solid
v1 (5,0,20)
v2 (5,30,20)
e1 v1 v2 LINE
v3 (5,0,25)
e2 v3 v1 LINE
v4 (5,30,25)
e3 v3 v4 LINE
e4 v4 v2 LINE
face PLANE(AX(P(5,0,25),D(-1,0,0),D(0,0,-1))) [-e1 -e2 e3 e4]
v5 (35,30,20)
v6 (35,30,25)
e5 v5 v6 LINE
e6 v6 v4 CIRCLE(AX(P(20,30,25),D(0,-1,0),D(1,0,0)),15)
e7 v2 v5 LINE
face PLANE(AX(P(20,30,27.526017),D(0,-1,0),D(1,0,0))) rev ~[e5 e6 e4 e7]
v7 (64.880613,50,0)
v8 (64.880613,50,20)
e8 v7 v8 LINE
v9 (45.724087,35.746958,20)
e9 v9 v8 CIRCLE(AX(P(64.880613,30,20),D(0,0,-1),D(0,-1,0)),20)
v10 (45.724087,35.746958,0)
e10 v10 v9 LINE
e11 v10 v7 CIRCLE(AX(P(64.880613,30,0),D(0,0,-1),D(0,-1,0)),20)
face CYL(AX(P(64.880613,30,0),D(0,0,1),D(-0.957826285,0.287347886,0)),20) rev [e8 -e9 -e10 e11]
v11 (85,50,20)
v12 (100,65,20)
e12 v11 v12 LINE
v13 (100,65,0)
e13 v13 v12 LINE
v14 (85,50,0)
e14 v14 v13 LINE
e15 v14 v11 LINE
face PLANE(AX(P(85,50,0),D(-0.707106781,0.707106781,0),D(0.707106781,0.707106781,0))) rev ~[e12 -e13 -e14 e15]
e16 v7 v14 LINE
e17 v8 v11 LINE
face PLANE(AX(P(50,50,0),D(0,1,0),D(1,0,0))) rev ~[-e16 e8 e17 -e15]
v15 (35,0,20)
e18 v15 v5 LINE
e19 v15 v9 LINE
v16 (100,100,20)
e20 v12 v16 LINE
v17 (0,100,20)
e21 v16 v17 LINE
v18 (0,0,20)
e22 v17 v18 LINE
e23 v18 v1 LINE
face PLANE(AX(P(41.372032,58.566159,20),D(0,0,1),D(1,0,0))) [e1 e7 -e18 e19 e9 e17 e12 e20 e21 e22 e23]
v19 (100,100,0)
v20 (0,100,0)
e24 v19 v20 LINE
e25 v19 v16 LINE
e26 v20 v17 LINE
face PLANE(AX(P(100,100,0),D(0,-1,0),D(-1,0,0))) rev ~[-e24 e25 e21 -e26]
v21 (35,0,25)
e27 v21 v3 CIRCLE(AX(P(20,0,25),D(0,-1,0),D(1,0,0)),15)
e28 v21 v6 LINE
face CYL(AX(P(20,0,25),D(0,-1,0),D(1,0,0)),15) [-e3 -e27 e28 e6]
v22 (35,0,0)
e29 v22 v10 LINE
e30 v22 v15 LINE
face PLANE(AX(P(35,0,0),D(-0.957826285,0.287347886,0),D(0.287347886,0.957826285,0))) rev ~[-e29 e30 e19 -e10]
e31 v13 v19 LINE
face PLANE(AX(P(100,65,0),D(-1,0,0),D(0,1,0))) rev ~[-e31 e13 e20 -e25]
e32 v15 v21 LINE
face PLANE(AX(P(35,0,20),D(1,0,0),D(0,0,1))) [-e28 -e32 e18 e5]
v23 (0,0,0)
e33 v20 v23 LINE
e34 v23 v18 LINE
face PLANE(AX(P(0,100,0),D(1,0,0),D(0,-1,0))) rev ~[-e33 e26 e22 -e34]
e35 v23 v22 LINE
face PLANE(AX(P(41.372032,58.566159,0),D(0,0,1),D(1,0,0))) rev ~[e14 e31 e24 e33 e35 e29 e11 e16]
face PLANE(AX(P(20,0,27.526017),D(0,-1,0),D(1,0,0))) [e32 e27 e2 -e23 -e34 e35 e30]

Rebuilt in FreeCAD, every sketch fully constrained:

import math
import FreeCAD as App
import Part
import Sketcher
from FreeCAD import Vector
Q = App.Units.Quantity


def edges_at(feature, points):
    """Names of the edges that pass closest to the given points."""
    edges = feature.Shape.Edges
    near = lambda p: min(range(len(edges)), key=lambda i: edges[i].distToShape(Part.Vertex(*p))[0])
    return sorted({f"Edge{near(p) + 1}" for p in points})

doc = App.newDocument("Part")
body = doc.addObject("PartDesign::Body", "Body")

# Sketch on XY plane
sketch1 = body.newObject("Sketcher::SketchObject", "Sketch")
sketch1.AttachmentSupport = (doc.getObject("XY_Plane"), [""])
sketch1.MapMode = "FlatFace"
sketch1.addGeometry([
    Part.LineSegment(Vector(0, 100, 0), Vector(0, 0, 0)),  # 0
    Part.LineSegment(Vector(0, 0, 0), Vector(35, 0, 0)),  # 1
    Part.LineSegment(Vector(35, 0, 0), Vector(50, 50, 0)),  # 2
    Part.LineSegment(Vector(50, 50, 0), Vector(85, 50, 0)),  # 3
    Part.LineSegment(Vector(85, 50, 0), Vector(100, 65, 0)),  # 4
    Part.LineSegment(Vector(100, 65, 0), Vector(100, 100, 0)),  # 5
    Part.LineSegment(Vector(100, 100, 0), Vector(0, 100, 0)),  # 6
], False)
sketch1.addConstraint([
    Sketcher.Constraint("Coincident", 0, 2, 1, 1),
    Sketcher.Constraint("Coincident", 1, 2, 2, 1),
    Sketcher.Constraint("Coincident", 2, 2, 3, 1),
    Sketcher.Constraint("Coincident", 3, 2, 4, 1),
    Sketcher.Constraint("Coincident", 4, 2, 5, 1),
    Sketcher.Constraint("Coincident", 5, 2, 6, 1),
    Sketcher.Constraint("Coincident", 6, 2, 0, 1),
    Sketcher.Constraint("Vertical", 0),
    Sketcher.Constraint("Horizontal", 1),
    Sketcher.Constraint("Horizontal", 3),
    Sketcher.Constraint("Vertical", 5),
    Sketcher.Constraint("Horizontal", 6),
    Sketcher.Constraint("Coincident", 0, 2, -1, 1),
    Sketcher.Constraint("Equal", 1, 3),
    Sketcher.Constraint("Equal", 6, 0),
    Sketcher.Constraint("Equal", 3, 5),
    Sketcher.Constraint("DistanceX", 1, 1, 1, 2, Q("35 mm")),
    Sketcher.Constraint("DistanceX", 6, 2, 6, 1, Q("100 mm")),
    Sketcher.Constraint("Angle", 4, Q("45 deg")),
    Sketcher.Constraint("DistanceX", -1, 1, 2, 2, Q("50 mm")),
])
pad1 = body.newObject("PartDesign::Pad", "Pad")
pad1.Profile = sketch1
pad1.Length = 20
doc.recompute()

fillet = body.newObject("PartDesign::Fillet", "Fillet")
fillet.Base = (pad1, edges_at(pad1, [(50, 50, 10)]))
fillet.Radius = 20

# Sketch on XZ plane
sketch2 = body.newObject("Sketcher::SketchObject", "Sketch001")
sketch2.AttachmentSupport = (doc.getObject("XZ_Plane"), [""])
sketch2.MapMode = "FlatFace"
sketch2.addGeometry([
    Part.LineSegment(Vector(35, 20, 0), Vector(35, 25, 0)),
    Part.ArcOfCircle(Part.Circle(Vector(20, 25, 0), Vector(0, 0, 1), 15), math.radians(0), math.radians(180)),
    Part.LineSegment(Vector(5, 25, 0), Vector(5, 20, 0)),
    Part.LineSegment(Vector(5, 20, 0), Vector(35, 20, 0)),
], False)
sketch2.addConstraint([
    Sketcher.Constraint("Tangent", 0, 2, 1, 1),
    Sketcher.Constraint("Tangent", 1, 2, 2, 1),
    Sketcher.Constraint("Coincident", 2, 2, 3, 1),
    Sketcher.Constraint("Coincident", 3, 2, 0, 1),
    Sketcher.Constraint("Vertical", 0),
    Sketcher.Constraint("Vertical", 2),
    Sketcher.Constraint("Horizontal", 3),
    Sketcher.Constraint("Radius", 1, Q("15 mm")),
    Sketcher.Constraint("DistanceY", 0, 1, 0, 2, Q("5 mm")),
    Sketcher.Constraint("DistanceX", -1, 1, 1, 3, Q("20 mm")),
    Sketcher.Constraint("DistanceY", -1, 1, 1, 3, Q("25 mm")),
])
pad2 = body.newObject("PartDesign::Pad", "Pad001")
pad2.Profile = sketch2
pad2.Length = 30
pad2.Reversed = True

doc.recompute()
